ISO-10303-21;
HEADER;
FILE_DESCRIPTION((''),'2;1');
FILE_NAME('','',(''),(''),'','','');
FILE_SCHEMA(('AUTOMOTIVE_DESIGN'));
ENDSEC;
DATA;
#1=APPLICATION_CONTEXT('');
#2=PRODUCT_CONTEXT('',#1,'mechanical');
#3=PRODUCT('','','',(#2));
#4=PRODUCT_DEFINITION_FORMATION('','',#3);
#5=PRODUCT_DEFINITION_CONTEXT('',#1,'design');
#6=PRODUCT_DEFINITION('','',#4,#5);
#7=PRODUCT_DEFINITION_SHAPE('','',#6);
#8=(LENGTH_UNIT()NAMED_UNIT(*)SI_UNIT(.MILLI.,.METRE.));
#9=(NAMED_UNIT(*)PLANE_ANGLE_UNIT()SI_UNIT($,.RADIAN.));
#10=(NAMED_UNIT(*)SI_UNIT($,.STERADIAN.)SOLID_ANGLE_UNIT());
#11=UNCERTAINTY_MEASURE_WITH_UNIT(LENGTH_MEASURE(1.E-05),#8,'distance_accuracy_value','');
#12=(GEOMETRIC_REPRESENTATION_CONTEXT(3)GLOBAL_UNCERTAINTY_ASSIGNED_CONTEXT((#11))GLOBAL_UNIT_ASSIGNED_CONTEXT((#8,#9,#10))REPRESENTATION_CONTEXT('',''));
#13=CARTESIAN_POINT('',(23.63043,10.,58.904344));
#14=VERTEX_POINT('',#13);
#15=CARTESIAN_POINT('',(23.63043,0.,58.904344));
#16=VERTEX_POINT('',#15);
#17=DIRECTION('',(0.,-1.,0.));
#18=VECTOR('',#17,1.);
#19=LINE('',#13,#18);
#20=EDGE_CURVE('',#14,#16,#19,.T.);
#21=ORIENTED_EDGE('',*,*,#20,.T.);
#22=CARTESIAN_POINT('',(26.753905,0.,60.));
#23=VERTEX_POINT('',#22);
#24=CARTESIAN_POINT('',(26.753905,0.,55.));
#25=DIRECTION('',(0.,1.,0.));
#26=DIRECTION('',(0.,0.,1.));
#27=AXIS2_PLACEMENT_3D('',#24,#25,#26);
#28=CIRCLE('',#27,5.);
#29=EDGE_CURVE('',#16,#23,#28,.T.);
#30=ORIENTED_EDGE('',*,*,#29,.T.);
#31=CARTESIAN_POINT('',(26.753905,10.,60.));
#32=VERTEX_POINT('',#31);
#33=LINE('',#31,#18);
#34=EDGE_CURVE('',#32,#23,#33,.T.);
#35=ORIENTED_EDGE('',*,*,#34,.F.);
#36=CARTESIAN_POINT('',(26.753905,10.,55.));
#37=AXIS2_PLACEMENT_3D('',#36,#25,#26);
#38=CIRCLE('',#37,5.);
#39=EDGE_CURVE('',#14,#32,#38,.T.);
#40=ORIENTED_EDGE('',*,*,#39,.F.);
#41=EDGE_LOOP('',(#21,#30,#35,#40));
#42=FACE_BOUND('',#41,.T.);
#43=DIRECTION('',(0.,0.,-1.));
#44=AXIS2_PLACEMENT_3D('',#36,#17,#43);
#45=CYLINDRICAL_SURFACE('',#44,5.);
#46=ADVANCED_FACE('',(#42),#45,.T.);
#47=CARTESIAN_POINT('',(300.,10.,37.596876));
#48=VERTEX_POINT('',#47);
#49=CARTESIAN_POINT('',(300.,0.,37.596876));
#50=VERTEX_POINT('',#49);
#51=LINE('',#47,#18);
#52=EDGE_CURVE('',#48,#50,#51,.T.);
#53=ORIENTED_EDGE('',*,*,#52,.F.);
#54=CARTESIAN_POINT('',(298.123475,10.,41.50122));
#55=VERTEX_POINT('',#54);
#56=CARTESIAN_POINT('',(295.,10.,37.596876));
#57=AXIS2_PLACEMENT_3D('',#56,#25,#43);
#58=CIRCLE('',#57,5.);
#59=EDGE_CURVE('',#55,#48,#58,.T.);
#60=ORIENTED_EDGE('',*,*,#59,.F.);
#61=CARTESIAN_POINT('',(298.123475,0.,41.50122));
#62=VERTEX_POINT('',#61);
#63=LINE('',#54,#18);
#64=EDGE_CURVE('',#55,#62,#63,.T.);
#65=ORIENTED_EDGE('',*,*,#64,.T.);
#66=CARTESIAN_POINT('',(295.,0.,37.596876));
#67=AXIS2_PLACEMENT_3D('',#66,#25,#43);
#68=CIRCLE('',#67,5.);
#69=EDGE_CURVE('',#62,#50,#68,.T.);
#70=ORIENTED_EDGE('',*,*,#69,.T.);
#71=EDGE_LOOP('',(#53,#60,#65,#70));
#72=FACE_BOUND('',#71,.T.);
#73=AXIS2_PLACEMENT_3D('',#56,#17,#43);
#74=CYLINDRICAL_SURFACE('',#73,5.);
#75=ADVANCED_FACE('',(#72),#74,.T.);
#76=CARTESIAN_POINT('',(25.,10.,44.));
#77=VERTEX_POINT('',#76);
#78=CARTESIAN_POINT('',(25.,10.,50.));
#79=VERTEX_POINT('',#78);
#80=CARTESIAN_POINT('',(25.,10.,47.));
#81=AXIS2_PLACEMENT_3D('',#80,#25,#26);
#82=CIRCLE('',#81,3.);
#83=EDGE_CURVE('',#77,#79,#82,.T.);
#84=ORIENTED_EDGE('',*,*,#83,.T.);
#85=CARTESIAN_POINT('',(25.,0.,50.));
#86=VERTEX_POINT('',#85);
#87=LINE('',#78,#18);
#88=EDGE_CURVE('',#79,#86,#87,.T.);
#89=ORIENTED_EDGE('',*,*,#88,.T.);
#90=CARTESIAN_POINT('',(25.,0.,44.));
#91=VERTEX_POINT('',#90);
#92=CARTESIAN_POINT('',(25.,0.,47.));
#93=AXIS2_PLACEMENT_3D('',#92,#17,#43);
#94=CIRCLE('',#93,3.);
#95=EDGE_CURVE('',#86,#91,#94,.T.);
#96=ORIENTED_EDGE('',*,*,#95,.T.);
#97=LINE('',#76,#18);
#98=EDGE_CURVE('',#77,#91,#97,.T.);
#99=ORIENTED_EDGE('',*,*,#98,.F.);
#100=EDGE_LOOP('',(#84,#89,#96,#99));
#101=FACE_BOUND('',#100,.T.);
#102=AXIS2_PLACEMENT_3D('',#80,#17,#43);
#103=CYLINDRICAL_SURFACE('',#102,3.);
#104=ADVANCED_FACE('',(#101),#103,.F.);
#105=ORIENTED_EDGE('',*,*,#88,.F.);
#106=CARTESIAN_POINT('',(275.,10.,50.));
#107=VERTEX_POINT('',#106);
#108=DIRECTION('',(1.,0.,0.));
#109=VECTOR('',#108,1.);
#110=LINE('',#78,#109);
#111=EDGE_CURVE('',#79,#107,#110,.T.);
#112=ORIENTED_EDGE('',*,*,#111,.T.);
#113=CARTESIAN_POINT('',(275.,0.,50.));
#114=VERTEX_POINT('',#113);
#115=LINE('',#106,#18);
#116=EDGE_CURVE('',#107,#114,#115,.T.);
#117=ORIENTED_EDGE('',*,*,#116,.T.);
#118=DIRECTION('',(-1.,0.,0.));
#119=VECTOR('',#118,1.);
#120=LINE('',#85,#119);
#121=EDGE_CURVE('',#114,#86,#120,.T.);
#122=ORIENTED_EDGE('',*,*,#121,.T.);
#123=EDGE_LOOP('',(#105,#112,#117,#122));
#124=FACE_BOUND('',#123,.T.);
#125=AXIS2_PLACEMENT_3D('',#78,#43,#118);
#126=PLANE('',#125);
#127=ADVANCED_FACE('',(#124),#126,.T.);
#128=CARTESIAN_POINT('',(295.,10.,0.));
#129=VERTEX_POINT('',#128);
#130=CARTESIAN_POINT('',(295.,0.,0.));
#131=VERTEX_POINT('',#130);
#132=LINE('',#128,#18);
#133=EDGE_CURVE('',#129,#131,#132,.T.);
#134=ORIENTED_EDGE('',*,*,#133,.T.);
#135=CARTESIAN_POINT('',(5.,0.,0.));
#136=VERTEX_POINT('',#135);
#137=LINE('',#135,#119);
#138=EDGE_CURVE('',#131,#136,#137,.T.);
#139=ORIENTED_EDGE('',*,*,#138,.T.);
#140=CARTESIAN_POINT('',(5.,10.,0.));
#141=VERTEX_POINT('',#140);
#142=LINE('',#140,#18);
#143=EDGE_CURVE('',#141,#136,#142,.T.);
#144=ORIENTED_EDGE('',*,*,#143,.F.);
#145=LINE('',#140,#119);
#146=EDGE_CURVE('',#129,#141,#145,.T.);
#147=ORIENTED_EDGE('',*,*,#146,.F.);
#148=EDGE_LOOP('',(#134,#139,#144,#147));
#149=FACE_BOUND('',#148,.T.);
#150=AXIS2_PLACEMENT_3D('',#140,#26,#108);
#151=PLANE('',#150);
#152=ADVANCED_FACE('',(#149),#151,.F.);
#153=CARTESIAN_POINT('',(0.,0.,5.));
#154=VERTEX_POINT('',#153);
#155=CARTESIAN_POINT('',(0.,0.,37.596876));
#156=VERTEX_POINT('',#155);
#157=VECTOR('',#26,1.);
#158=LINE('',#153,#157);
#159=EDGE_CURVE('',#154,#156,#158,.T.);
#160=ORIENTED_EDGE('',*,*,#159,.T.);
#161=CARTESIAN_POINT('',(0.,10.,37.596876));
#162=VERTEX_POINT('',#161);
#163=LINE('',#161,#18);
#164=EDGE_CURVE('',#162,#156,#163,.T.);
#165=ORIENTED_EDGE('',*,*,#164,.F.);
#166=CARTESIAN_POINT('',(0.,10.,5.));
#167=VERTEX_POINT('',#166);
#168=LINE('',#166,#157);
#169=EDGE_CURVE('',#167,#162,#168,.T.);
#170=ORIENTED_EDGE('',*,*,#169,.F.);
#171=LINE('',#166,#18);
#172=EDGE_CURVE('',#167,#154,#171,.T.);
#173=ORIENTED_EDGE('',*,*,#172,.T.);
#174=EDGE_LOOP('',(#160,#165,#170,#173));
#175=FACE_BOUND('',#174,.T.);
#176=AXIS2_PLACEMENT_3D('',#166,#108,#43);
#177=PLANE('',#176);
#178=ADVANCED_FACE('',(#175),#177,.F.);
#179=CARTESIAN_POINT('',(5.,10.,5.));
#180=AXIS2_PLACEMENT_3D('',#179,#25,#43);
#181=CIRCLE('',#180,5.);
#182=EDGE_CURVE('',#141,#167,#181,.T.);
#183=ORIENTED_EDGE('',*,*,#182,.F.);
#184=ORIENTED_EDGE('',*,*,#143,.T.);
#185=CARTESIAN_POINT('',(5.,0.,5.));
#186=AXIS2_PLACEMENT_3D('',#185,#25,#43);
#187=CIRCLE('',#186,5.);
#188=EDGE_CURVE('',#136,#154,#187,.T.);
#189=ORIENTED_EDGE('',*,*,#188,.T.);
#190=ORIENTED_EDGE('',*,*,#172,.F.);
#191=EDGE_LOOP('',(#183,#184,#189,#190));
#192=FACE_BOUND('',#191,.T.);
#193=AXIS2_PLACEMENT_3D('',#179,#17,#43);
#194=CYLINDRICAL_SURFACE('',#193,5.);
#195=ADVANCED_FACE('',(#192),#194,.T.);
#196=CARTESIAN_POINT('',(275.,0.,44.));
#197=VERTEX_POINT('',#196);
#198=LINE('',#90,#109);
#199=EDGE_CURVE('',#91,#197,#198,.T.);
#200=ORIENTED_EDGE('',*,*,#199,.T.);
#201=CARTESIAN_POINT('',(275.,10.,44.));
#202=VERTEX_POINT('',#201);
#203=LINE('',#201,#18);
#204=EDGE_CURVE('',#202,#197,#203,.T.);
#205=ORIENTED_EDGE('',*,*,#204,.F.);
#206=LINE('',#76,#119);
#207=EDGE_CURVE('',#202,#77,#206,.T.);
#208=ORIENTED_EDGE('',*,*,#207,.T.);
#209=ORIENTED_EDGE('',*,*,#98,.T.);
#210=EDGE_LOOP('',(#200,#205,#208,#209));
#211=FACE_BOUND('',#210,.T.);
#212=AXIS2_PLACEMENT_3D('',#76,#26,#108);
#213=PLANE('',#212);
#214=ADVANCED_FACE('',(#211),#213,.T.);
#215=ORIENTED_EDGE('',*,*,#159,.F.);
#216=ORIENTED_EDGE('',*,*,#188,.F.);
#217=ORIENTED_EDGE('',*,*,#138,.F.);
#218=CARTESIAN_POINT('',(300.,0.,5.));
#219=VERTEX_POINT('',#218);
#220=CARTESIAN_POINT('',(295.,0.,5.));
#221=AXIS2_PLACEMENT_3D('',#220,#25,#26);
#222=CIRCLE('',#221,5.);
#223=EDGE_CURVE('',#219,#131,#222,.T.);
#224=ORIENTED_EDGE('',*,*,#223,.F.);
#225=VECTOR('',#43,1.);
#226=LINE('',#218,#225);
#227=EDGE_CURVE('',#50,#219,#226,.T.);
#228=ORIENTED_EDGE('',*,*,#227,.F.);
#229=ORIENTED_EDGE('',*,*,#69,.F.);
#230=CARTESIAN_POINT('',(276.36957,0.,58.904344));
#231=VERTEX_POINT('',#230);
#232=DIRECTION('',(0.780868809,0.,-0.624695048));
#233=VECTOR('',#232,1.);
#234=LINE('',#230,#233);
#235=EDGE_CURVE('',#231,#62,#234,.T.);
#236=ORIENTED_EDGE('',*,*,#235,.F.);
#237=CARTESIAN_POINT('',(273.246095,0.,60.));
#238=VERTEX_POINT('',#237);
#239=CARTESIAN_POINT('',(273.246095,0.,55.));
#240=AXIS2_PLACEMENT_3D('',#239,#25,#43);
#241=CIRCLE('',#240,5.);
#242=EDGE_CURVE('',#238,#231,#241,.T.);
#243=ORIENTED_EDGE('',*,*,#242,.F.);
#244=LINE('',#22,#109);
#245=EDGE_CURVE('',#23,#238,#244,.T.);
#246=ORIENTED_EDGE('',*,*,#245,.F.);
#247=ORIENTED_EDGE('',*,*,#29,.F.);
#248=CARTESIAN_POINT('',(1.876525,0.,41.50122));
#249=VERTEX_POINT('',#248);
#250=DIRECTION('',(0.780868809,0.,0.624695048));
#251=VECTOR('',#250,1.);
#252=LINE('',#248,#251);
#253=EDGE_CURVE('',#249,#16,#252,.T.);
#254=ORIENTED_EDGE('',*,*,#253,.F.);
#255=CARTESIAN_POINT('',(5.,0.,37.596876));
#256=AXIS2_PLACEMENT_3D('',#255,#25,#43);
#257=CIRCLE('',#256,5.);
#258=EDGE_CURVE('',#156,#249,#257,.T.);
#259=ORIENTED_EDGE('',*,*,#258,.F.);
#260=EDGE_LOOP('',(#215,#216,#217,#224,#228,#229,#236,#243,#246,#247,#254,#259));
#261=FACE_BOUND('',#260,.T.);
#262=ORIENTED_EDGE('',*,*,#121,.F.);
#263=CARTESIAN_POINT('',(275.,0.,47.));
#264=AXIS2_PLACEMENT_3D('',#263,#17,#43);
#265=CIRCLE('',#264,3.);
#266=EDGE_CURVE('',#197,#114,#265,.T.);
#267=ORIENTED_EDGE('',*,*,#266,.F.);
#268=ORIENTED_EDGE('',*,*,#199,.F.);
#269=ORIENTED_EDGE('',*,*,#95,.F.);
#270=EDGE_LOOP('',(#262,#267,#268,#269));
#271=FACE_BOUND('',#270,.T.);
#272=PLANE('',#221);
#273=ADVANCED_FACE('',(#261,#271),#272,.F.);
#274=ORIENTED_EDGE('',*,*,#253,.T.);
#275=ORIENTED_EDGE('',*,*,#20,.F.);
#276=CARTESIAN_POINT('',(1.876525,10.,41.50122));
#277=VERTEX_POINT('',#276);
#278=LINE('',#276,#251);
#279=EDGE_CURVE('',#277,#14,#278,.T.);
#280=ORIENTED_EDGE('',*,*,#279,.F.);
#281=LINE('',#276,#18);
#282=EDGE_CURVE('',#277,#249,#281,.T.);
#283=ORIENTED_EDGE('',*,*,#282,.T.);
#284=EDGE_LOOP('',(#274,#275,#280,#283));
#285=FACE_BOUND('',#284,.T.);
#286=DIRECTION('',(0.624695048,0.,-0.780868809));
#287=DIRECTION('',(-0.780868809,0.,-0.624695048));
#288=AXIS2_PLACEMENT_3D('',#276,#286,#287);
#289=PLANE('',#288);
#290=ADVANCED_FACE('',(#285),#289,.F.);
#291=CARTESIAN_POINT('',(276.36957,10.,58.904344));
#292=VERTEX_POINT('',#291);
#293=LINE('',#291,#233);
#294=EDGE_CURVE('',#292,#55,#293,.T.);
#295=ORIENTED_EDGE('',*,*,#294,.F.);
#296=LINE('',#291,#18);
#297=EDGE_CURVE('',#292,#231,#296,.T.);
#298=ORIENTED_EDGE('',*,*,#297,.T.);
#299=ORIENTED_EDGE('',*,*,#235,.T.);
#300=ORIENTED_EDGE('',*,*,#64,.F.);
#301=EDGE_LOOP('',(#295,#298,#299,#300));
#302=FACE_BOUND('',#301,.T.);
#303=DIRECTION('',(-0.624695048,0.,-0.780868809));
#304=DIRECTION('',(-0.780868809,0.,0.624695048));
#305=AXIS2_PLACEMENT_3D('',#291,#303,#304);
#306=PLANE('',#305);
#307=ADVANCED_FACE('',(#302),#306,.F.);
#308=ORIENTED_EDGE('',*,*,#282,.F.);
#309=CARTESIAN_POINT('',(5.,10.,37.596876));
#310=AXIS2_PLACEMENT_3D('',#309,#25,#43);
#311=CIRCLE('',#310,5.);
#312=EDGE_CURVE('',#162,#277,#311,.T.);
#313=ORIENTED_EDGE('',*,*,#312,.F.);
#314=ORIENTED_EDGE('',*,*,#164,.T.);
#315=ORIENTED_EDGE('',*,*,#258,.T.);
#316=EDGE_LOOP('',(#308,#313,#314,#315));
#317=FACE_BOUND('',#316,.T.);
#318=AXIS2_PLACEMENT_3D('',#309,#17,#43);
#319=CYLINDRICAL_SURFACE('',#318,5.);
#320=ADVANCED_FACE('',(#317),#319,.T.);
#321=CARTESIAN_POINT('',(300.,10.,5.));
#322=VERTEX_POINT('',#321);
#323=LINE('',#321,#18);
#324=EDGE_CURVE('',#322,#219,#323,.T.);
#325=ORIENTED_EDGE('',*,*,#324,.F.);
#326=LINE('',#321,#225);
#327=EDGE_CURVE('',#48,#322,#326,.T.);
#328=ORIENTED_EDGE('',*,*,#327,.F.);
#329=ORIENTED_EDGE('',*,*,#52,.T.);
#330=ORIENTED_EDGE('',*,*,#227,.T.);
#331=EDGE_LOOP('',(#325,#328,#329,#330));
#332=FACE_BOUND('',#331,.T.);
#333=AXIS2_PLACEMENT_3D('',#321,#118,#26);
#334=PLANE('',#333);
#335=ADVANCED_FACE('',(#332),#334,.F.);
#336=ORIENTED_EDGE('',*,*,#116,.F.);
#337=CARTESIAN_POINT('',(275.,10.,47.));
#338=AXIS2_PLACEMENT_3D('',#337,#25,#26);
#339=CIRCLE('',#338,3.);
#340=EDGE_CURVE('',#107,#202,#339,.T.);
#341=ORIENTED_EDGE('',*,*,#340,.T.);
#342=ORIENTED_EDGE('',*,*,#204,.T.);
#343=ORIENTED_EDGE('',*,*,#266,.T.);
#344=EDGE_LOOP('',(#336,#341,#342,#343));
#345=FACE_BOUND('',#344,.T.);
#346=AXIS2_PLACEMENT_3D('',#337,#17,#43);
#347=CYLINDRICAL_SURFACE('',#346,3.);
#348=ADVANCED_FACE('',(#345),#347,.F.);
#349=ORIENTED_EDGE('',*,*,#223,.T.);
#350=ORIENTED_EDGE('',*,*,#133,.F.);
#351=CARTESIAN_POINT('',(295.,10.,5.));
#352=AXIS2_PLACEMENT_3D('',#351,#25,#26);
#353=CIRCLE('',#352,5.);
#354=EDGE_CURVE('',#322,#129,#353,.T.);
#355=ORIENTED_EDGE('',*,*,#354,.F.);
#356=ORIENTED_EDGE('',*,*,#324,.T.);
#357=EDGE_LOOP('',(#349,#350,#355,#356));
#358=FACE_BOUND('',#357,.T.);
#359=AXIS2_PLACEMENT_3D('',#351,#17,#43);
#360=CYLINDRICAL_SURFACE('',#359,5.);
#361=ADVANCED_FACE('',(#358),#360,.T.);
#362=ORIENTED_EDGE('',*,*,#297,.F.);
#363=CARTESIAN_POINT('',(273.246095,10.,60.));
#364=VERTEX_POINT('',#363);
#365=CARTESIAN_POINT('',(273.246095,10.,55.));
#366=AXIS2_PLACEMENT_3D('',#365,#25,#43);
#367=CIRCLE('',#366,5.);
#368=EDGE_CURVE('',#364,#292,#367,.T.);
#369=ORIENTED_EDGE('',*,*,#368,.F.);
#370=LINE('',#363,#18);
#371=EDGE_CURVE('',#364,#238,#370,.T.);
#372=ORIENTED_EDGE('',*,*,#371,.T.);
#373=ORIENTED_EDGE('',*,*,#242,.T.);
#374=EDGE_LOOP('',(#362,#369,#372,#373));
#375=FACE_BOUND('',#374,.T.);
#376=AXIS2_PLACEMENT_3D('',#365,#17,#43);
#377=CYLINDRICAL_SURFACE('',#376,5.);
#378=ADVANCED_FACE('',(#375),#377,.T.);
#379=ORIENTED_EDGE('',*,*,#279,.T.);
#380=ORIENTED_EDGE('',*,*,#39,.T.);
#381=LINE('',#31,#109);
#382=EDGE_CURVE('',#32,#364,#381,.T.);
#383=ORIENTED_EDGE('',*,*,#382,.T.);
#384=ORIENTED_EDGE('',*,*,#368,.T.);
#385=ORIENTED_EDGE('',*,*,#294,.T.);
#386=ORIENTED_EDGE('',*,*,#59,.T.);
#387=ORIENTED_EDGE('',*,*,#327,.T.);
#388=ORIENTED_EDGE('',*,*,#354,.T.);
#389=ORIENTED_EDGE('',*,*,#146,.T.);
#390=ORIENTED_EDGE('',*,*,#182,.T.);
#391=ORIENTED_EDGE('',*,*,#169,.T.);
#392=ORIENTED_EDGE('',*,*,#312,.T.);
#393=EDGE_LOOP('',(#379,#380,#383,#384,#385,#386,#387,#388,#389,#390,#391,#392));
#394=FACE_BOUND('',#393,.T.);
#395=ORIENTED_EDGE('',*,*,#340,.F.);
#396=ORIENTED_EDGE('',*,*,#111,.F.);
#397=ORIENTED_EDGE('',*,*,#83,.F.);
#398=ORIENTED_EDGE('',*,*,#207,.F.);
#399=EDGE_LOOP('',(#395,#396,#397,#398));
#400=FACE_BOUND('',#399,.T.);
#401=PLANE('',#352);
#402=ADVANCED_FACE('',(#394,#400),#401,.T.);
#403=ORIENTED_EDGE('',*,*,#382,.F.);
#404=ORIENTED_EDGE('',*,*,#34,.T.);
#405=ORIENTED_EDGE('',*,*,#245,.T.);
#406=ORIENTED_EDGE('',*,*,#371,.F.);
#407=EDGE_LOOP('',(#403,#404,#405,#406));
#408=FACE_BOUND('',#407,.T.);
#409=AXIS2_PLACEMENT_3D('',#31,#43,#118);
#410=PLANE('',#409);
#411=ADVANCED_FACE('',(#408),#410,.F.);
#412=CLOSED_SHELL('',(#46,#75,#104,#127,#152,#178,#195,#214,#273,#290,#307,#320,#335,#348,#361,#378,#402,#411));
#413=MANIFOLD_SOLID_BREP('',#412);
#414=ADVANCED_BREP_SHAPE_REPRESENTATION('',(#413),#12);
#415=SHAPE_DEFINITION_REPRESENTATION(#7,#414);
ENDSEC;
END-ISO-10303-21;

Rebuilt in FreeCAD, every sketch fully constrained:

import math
import FreeCAD as App
import Part
import Sketcher

doc = App.newDocument("Part")
body = doc.addObject("PartDesign::Body", "Body")

sketch1 = body.newObject("Sketcher::SketchObject", "Sketch")
sketch1.AttachmentSupport = (doc.getObject("XZ_Plane"), [""])
sketch1.MapMode = "FlatFace"
sketch1.addGeometry([
    Part.LineSegment(App.Vector(0, 5, 0), App.Vector(0, 37.6, 0)),
    Part.ArcOfCircle(Part.Circle(App.Vector(5, 37.6, 0), App.Vector(0, 0, 1), 5), math.radians(129), math.radians(180)),
    Part.LineSegment(App.Vector(1.9, 41.5, 0), App.Vector(23.6, 58.9, 0)),
    Part.ArcOfCircle(Part.Circle(App.Vector(26.8, 55, 0), App.Vector(0, 0, 1), 5), math.radians(90), math.radians(129)),
    Part.LineSegment(App.Vector(26.8, 60, 0), App.Vector(273.2, 60, 0)),
    Part.ArcOfCircle(Part.Circle(App.Vector(273.2, 55, 0), App.Vector(0, 0, 1), 5), math.radians(51), math.radians(90)),
    Part.LineSegment(App.Vector(276.4, 58.9, 0), App.Vector(298.1, 41.5, 0)),
    Part.ArcOfCircle(Part.Circle(App.Vector(295, 37.6, 0), App.Vector(0, 0, 1), 5), math.radians(0), math.radians(51)),
    Part.LineSegment(App.Vector(300, 37.6, 0), App.Vector(300, 5, 0)),
    Part.ArcOfCircle(Part.Circle(App.Vector(295, 5, 0), App.Vector(0, 0, 1), 5), math.radians(-90), math.radians(0)),
    Part.LineSegment(App.Vector(295, 0, 0), App.Vector(5, 0, 0)),
    Part.ArcOfCircle(Part.Circle(App.Vector(5, 5, 0), App.Vector(0, 0, 1), 5), math.radians(180), math.radians(270)),
], False)
sketch1.addConstraint([
    Sketcher.Constraint("Tangent", 0, 2, 1, 2),
    Sketcher.Constraint("Tangent", 1, 1, 2, 1),
    Sketcher.Constraint("Tangent", 2, 2, 3, 2),
    Sketcher.Constraint("Tangent", 3, 1, 4, 1),
    Sketcher.Constraint("Tangent", 4, 2, 5, 2),
    Sketcher.Constraint("Tangent", 5, 1, 6, 1),
    Sketcher.Constraint("Tangent", 6, 2, 7, 2),
    Sketcher.Constraint("Tangent", 7, 1, 8, 1),
    Sketcher.Constraint("Tangent", 8, 2, 9, 2),
    Sketcher.Constraint("Tangent", 9, 1, 10, 1),
    Sketcher.Constraint("Tangent", 10, 2, 11, 2),
    Sketcher.Constraint("Tangent", 11, 1, 0, 1),
    Sketcher.Constraint("Vertical", 0),
    Sketcher.Constraint("Horizontal", 4),
    Sketcher.Constraint("Vertical", 8),
    Sketcher.Constraint("Horizontal", 10),
    Sketcher.Constraint("Equal", 1, 3),
    Sketcher.Constraint("Equal", 3, 5),
    Sketcher.Constraint("Equal", 5, 7),
    Sketcher.Constraint("Equal", 7, 9),
    Sketcher.Constraint("Equal", 9, 11),
    Sketcher.Constraint("PointOnObject", 0, 2, -2),
    Sketcher.Constraint("PointOnObject", 9, 1, -1),
    Sketcher.Constraint("Horizontal", 1, 3, 7, 3),
    Sketcher.Constraint("Horizontal", 2, 2, 5, 1),
    Sketcher.Constraint("Radius", 1, 5.0),
    Sketcher.Constraint("DistanceX", 10, 2, 10, 1, 290.0),
    Sketcher.Constraint("DistanceY", -1, 1, 3, 3, 55.0),
    Sketcher.Constraint("DistanceX", 4, 1, 4, 2, 246.492189),
    Sketcher.Constraint("Distance", 2, 27.858592),
])
pad1 = body.newObject("PartDesign::Pad", "Pad")
pad1.Profile = sketch1
pad1.Length = 10
pad1.Reversed = True

sketch2 = body.newObject("Sketcher::SketchObject", "Sketch001")
sketch2.AttachmentSupport = (doc.getObject("XZ_Plane"), [""])
sketch2.MapMode = "FlatFace"
sketch2.addGeometry([
    Part.LineSegment(App.Vector(275, 44, 0), App.Vector(25, 44, 0)),
    Part.ArcOfCircle(Part.Circle(App.Vector(25, 47, 0), App.Vector(0, 0, 1), 3), math.radians(90), math.radians(270)),
    Part.LineSegment(App.Vector(25, 50, 0), App.Vector(275, 50, 0)),
    Part.ArcOfCircle(Part.Circle(App.Vector(275, 47, 0), App.Vector(0, 0, 1), 3), math.radians(-90), math.radians(90)),
], False)
sketch2.addConstraint([
    Sketcher.Constraint("Tangent", 0, 2, 1, 2),
    Sketcher.Constraint("Tangent", 1, 1, 2, 1),
    Sketcher.Constraint("Tangent", 2, 2, 3, 2),
    Sketcher.Constraint("Tangent", 3, 1, 0, 1),
    Sketcher.Constraint("Horizontal", 0),
    Sketcher.Constraint("Horizontal", 2),
    Sketcher.Constraint("Radius", 1, 3.0),
    Sketcher.Constraint("DistanceX", 0, 2, 0, 1, 250.0),
    Sketcher.Constraint("DistanceX", -1, 1, 1, 3, 25.0),
    Sketcher.Constraint("DistanceY", -1, 1, 1, 3, 47.0),
])
pocket1 = body.newObject("PartDesign::Pocket", "Pocket")
pocket1.Profile = sketch2
pocket1.Type = "ThroughAll"
pocket1.Midplane = True

doc.recompute()
